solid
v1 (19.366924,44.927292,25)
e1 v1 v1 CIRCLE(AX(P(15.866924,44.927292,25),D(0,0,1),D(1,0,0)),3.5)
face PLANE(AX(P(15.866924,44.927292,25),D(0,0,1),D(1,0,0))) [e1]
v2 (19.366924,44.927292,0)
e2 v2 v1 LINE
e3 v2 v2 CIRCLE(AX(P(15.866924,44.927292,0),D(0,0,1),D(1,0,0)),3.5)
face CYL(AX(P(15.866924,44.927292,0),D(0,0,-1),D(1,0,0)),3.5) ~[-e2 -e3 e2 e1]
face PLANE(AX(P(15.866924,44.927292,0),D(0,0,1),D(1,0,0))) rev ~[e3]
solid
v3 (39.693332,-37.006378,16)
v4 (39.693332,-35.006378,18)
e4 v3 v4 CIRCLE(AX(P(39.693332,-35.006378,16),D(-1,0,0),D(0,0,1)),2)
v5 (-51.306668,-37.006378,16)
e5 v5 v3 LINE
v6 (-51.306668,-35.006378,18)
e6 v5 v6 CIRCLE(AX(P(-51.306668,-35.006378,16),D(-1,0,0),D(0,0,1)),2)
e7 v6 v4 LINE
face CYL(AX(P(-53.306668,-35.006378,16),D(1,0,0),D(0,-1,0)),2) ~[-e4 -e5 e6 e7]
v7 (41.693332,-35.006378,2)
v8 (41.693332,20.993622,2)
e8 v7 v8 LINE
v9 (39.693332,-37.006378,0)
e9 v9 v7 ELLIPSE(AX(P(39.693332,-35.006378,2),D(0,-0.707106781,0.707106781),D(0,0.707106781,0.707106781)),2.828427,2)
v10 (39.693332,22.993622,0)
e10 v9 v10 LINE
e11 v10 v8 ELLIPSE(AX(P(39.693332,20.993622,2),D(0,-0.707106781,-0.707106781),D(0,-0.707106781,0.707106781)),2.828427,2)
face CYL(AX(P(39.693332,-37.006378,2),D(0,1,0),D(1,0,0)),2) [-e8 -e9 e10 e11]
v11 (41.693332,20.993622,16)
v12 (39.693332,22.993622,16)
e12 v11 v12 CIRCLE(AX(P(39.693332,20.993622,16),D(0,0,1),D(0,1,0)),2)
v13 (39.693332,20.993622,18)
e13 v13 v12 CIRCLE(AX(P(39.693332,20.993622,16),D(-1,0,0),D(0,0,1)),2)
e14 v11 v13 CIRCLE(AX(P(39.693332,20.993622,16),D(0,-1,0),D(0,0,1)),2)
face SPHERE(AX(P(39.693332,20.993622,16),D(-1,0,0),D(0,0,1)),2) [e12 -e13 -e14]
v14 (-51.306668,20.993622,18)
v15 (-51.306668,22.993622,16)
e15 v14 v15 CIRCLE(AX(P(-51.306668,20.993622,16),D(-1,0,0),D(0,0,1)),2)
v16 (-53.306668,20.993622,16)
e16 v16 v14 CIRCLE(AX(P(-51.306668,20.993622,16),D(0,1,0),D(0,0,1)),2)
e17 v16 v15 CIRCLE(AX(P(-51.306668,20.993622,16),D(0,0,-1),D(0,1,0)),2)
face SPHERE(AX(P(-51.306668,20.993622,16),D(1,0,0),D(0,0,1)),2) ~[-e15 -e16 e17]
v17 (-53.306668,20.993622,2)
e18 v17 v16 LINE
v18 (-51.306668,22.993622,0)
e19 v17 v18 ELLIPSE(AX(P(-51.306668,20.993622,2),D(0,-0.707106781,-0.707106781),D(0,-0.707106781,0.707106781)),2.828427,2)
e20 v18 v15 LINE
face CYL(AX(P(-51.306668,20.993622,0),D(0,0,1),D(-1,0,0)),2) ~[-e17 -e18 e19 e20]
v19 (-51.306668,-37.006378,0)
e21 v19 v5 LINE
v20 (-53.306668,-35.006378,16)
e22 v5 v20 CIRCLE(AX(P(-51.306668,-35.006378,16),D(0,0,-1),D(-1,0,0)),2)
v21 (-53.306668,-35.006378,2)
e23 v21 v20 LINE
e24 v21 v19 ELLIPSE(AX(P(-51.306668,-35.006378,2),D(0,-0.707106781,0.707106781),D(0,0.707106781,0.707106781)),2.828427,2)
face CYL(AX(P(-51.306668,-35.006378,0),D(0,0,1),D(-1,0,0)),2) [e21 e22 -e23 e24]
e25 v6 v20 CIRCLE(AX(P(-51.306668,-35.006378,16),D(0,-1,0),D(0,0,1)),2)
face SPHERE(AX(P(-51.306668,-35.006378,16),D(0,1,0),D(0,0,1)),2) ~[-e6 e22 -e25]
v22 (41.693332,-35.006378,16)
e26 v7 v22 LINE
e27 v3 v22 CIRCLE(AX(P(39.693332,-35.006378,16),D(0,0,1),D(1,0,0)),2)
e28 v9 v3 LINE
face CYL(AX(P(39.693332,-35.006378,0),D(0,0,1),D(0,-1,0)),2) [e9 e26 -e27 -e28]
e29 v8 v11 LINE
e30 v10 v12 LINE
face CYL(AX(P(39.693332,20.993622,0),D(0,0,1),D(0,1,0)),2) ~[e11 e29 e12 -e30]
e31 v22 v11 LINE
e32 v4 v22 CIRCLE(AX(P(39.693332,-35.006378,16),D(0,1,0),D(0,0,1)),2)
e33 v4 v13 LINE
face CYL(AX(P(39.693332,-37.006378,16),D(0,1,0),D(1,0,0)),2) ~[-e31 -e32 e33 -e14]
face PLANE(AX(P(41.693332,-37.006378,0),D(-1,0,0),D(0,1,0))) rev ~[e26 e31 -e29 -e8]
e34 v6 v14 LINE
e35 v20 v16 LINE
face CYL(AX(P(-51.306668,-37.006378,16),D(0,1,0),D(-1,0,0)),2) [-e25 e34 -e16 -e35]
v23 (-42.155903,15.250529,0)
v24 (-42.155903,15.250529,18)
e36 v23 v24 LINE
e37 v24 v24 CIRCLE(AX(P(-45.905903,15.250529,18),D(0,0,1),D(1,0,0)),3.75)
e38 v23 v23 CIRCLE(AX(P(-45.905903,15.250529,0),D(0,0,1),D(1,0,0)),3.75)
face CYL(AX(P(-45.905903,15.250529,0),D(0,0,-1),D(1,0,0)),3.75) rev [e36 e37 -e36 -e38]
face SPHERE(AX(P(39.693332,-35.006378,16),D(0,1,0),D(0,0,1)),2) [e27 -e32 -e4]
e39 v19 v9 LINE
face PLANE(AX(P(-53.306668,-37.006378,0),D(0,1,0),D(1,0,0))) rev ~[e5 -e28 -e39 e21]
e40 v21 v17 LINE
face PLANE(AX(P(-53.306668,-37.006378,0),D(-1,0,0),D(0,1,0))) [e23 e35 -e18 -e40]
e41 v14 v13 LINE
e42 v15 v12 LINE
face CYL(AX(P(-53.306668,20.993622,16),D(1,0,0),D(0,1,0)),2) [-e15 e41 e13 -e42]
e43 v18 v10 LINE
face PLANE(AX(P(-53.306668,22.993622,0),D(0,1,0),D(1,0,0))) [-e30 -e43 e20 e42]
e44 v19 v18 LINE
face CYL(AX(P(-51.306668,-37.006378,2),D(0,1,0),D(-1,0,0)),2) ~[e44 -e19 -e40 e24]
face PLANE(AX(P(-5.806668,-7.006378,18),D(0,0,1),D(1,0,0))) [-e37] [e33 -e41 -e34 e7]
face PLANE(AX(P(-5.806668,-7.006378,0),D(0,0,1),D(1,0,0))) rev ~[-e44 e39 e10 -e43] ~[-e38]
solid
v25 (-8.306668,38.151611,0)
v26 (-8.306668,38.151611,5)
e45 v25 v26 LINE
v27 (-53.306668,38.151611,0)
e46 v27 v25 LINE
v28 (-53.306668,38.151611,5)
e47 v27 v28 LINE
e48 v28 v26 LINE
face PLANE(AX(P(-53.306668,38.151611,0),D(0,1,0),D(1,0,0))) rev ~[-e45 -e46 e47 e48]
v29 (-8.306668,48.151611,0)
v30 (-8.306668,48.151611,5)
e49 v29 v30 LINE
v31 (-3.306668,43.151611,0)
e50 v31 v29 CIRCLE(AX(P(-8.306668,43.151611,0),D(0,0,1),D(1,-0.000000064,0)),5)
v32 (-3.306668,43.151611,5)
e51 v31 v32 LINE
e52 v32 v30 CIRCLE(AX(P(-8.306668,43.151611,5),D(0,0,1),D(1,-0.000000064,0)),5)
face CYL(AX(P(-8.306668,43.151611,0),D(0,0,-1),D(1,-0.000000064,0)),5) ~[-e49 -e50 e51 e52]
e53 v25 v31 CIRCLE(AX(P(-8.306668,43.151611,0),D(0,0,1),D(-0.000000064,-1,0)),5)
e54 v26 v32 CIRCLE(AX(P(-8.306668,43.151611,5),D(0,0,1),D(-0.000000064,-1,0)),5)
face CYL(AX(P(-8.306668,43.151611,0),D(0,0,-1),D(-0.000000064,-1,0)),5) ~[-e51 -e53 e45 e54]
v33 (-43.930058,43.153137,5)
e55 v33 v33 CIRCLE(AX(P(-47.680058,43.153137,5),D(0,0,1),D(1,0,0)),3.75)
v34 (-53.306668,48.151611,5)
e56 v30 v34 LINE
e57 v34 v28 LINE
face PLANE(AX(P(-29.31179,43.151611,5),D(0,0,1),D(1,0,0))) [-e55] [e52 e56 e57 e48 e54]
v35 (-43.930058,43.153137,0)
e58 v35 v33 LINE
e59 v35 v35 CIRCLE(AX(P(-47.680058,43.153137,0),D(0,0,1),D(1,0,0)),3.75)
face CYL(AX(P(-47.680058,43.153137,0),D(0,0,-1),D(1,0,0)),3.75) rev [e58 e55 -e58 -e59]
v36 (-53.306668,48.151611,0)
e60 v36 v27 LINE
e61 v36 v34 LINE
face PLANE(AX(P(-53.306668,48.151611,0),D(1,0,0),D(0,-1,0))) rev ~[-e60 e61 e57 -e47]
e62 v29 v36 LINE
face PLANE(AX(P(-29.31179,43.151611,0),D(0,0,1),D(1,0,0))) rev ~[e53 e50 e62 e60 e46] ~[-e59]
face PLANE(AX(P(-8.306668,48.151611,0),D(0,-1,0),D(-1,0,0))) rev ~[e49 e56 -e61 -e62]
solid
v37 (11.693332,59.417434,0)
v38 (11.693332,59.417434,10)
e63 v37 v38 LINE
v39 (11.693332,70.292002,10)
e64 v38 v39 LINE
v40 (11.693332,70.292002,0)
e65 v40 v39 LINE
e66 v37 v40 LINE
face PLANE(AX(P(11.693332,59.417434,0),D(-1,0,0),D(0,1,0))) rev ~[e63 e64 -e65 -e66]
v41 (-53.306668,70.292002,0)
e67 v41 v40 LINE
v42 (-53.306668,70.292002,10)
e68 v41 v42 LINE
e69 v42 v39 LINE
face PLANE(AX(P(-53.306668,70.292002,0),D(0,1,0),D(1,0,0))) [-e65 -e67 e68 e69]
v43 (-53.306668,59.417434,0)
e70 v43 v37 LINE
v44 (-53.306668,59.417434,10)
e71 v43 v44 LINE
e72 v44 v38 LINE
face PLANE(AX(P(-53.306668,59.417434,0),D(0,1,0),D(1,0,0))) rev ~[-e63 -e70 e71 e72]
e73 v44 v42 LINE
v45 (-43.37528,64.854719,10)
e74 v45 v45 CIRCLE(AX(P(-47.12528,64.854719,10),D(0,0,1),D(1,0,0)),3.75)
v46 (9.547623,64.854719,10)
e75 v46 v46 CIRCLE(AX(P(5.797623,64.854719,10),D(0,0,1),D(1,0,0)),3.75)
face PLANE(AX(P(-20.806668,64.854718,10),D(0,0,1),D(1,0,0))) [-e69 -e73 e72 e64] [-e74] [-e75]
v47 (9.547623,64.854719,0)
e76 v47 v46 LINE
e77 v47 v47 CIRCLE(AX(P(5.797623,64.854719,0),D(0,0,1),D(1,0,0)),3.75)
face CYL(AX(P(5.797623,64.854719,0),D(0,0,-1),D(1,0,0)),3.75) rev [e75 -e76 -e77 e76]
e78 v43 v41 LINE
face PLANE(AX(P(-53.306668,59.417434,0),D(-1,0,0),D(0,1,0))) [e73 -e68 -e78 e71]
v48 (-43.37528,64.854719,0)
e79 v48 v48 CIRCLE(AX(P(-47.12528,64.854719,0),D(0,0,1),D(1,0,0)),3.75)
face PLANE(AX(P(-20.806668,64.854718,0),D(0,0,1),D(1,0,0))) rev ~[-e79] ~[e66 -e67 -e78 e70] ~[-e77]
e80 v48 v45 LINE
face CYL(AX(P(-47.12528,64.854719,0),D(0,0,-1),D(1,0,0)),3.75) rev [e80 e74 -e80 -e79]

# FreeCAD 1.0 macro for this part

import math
import FreeCAD as App
import Part
import Sketcher
from FreeCAD import Vector
Q = App.Units.Quantity


def edges_at(feature, points):
    """Names of the edges that pass closest to the given points."""
    edges = feature.Shape.Edges
    near = lambda p: min(range(len(edges)), key=lambda i: edges[i].distToShape(Part.Vertex(*p))[0])
    return sorted({f"Edge{near(p) + 1}" for p in points})


def add_polygon(sketch, points):
    """Adds a closed chain of lines whose ends are joined by coincident constraints."""
    first, n = sketch.GeometryCount, len(points)
    for a, b in zip(points, points[1:] + points[:1]):
        sketch.addGeometry(Part.LineSegment(App.Vector(*a, 0), App.Vector(*b, 0)), False)
    for i in range(n):
        sketch.addConstraint(Sketcher.Constraint("Coincident", first + i, 2, first + (i + 1) % n, 1))

doc = App.newDocument("Part")
params = doc.addObject("Spreadsheet::Sheet", "Params")
for row, (alias, value) in enumerate([
    ("sketch1_radius", "5 mm"),
    ("sketch1_diameter", "7.5 mm"),
    ("sketch1_width", "45 mm"),
    ("pad1_length", "5 mm"),
    ("sketch2_diameter", "7.5 mm"),
    ("sketch2_width", "95 mm"),
    ("sketch2_height", "60 mm"),
    ("pad2_length", "18 mm"),
    ("fillet_radius", "2 mm"),
    ("sketch3_diameter", "7 mm"),
    ("pad3_length", "25 mm"),
    ("sketch4_diameter", "7.5 mm"),
    ("sketch4_width", "65 mm"),
    ("pad4_length", "10 mm"),
], start=1):
    params.set(f"A{row}", alias)
    params.set(f"B{row}", "=" + value)
    params.setAlias(f"B{row}", alias)

body = doc.addObject("PartDesign::Body", "Body")

sketch1 = body.newObject("Sketcher::SketchObject", "Sketch")
sketch1.AttachmentSupport = (doc.getObject("XY_Plane"), [""])
sketch1.MapMode = "FlatFace"
sketch1.addGeometry([
    Part.LineSegment(Vector(-8.3, 48.2, 0), Vector(-53.3, 48.2, 0)),
    Part.LineSegment(Vector(-53.3, 48.2, 0), Vector(-53.3, 38.2, 0)),
    Part.LineSegment(Vector(-53.3, 38.2, 0), Vector(-8.3, 38.2, 0)),
    Part.ArcOfCircle(Part.Circle(Vector(-8.3, 43.2, 0), Vector(0, 0, 1), 5), math.radians(-90), math.radians(0)),
    Part.ArcOfCircle(Part.Circle(Vector(-8.3, 43.2, 0), Vector(0, 0, 1), 5), math.radians(0), math.radians(90)),
    Part.Circle(Vector(-47.7, 43.2, 0), Vector(0, 0, 1), 3.8),
], False)
sketch1.addConstraint([
    Sketcher.Constraint("Coincident", 0, 2, 1, 1),
    Sketcher.Constraint("Coincident", 1, 2, 2, 1),
    Sketcher.Constraint("Tangent", 2, 2, 3, 1),
    Sketcher.Constraint("Tangent", 3, 2, 4, 1),
    Sketcher.Constraint("Tangent", 4, 2, 0, 1),
    Sketcher.Constraint("Horizontal", 0),
    Sketcher.Constraint("Vertical", 1),
    Sketcher.Constraint("Horizontal", 2),
    Sketcher.Constraint("Equal", 3, 4),
    Sketcher.Constraint("Horizontal", 4, 3, 3, 2),
    Sketcher.Constraint("Radius", 3, Q("5 mm")),
    Sketcher.Constraint("Diameter", 5, Q("7.5 mm")),
    Sketcher.Constraint("DistanceX", 0, 2, 0, 1, Q("45 mm")),
    Sketcher.Constraint("DistanceY", -1, 1, 3, 3, Q("43.151611 mm")),
    Sketcher.Constraint("DistanceX", 5, 3, -1, 1, Q("47.680058 mm")),
    Sketcher.Constraint("DistanceX", 0, 2, -1, 1, Q("53.306668 mm")),
    Sketcher.Constraint("DistanceY", -1, 1, 5, 3, Q("43.153137 mm")),
])
sketch1.setExpression("Constraints[10]", "Params.sketch1_radius")
sketch1.setExpression("Constraints[11]", "Params.sketch1_diameter")
sketch1.setExpression("Constraints[12]", "Params.sketch1_width")
pad1 = body.newObject("PartDesign::Pad", "Pad")
pad1.Profile = sketch1
pad1.setExpression("Length", "Params.pad1_length")
body2 = doc.addObject("PartDesign::Body", "Body001")

sketch2 = body2.newObject("Sketcher::SketchObject", "Sketch001")
sketch2.AttachmentSupport = (doc.getObject("XY_Plane001"), [""])
sketch2.MapMode = "FlatFace"
add_polygon(sketch2, [(-53.3, 23), (-53.3, -37), (41.7, -37), (41.7, 23)])
sketch2.addGeometry(Part.Circle(Vector(-45.9, 15.3, 0), Vector(0, 0, 1), 3.8), False)
sketch2.addConstraint([
    Sketcher.Constraint("Vertical", 0),
    Sketcher.Constraint("Horizontal", 1),
    Sketcher.Constraint("Vertical", 2),
    Sketcher.Constraint("Horizontal", 3),
    Sketcher.Constraint("Diameter", 4, Q("7.5 mm")),
    Sketcher.Constraint("DistanceX", 1, 1, 1, 2, Q("95 mm")),
    Sketcher.Constraint("DistanceY", 0, 2, 0, 1, Q("60 mm")),
    Sketcher.Constraint("DistanceY", -1, 1, 4, 3, Q("15.250529 mm")),
    Sketcher.Constraint("DistanceX", 0, 2, -1, 1, Q("53.306668 mm")),
    Sketcher.Constraint("DistanceY", -1, 1, 2, 2, Q("22.993622 mm")),
    Sketcher.Constraint("DistanceX", 4, 3, -1, 1, Q("45.905903 mm")),
])
sketch2.setExpression("Constraints[8]", "Params.sketch2_diameter")
sketch2.setExpression("Constraints[9]", "Params.sketch2_width")
sketch2.setExpression("Constraints[10]", "Params.sketch2_height")
pad2 = body2.newObject("PartDesign::Pad", "Pad001")
pad2.Profile = sketch2
pad2.setExpression("Length", "Params.pad2_length")
doc.recompute()

fillet = body2.newObject("PartDesign::Fillet", "Fillet")
fillet.Base = (pad2, edges_at(pad2, [
    (-5.807, 22.994, 18),
    (-53.307, -7.006, 18),
    (41.693, -7.006, 18),
    (-5.807, -37.006, 18),
    (-53.307, 22.994, 9),
    (-53.307, -37.006, 9),
    (-53.307, -7.006, 0),
    (41.693, -37.006, 9),
    (41.693, 22.994, 9),
    (41.693, -7.006, 0),
]))
fillet.setExpression("Radius", "Params.fillet_radius")
body3 = doc.addObject("PartDesign::Body", "Body002")

sketch3 = body3.newObject("Sketcher::SketchObject", "Sketch002")
sketch3.AttachmentSupport = (doc.getObject("XY_Plane002"), [""])
sketch3.MapMode = "FlatFace"
sketch3.addGeometry(Part.Circle(Vector(15.9, 44.9, 0), Vector(0, 0, 1), 3.5), False)
sketch3.addConstraint([
    Sketcher.Constraint("Diameter", 0, Q("7 mm")),
    Sketcher.Constraint("DistanceX", -1, 1, 0, 3, Q("15.866924 mm")),
    Sketcher.Constraint("DistanceY", -1, 1, 0, 3, Q("44.927292 mm")),
])
sketch3.setExpression("Constraints[0]", "Params.sketch3_diameter")
pad3 = body3.newObject("PartDesign::Pad", "Pad002")
pad3.Profile = sketch3
pad3.setExpression("Length", "Params.pad3_length")
body4 = doc.addObject("PartDesign::Body", "Body003")

sketch4 = body4.newObject("Sketcher::SketchObject", "Sketch003")
sketch4.AttachmentSupport = (doc.getObject("XY_Plane003"), [""])
sketch4.MapMode = "FlatFace"
add_polygon(sketch4, [(-53.3, 70.3), (-53.3, 59.4), (11.7, 59.4), (11.7, 70.3)])
sketch4.addGeometry(Part.Circle(Vector(-47.1, 64.9, 0), Vector(0, 0, 1), 3.8), False)
sketch4.addGeometry(Part.Circle(Vector(5.8, 64.9, 0), Vector(0, 0, 1), 3.8), False)
sketch4.addConstraint([
    Sketcher.Constraint("Vertical", 0),
    Sketcher.Constraint("Horizontal", 1),
    Sketcher.Constraint("Vertical", 2),
    Sketcher.Constraint("Horizontal", 3),
    Sketcher.Constraint("Equal", 4, 5),
    Sketcher.Constraint("Horizontal", 4, 3, 5, 3),
    Sketcher.Constraint("Diameter", 4, Q("7.5 mm")),
    Sketcher.Constraint("DistanceX", 1, 1, 1, 2, Q("65 mm")),
    Sketcher.Constraint("DistanceY", 0, 2, 0, 1, Q("10.874569 mm")),
    Sketcher.Constraint("DistanceX", 4, 3, -1, 1, Q("47.12528 mm")),
    Sketcher.Constraint("DistanceY", -1, 1, 4, 3, Q("64.854719 mm")),
    Sketcher.Constraint("DistanceX", 0, 2, -1, 1, Q("53.306668 mm")),
    Sketcher.Constraint("DistanceX", 0, 2, 5, 3, Q("59.104291 mm")),
    Sketcher.Constraint("DistanceY", -1, 1, 0, 2, Q("59.417434 mm")),
])
sketch4.setExpression("Constraints[10]", "Params.sketch4_diameter")
sketch4.setExpression("Constraints[11]", "Params.sketch4_width")
pad4 = body4.newObject("PartDesign::Pad", "Pad003")
pad4.Profile = sketch4
pad4.setExpression("Length", "Params.pad4_length")

doc.recompute()
